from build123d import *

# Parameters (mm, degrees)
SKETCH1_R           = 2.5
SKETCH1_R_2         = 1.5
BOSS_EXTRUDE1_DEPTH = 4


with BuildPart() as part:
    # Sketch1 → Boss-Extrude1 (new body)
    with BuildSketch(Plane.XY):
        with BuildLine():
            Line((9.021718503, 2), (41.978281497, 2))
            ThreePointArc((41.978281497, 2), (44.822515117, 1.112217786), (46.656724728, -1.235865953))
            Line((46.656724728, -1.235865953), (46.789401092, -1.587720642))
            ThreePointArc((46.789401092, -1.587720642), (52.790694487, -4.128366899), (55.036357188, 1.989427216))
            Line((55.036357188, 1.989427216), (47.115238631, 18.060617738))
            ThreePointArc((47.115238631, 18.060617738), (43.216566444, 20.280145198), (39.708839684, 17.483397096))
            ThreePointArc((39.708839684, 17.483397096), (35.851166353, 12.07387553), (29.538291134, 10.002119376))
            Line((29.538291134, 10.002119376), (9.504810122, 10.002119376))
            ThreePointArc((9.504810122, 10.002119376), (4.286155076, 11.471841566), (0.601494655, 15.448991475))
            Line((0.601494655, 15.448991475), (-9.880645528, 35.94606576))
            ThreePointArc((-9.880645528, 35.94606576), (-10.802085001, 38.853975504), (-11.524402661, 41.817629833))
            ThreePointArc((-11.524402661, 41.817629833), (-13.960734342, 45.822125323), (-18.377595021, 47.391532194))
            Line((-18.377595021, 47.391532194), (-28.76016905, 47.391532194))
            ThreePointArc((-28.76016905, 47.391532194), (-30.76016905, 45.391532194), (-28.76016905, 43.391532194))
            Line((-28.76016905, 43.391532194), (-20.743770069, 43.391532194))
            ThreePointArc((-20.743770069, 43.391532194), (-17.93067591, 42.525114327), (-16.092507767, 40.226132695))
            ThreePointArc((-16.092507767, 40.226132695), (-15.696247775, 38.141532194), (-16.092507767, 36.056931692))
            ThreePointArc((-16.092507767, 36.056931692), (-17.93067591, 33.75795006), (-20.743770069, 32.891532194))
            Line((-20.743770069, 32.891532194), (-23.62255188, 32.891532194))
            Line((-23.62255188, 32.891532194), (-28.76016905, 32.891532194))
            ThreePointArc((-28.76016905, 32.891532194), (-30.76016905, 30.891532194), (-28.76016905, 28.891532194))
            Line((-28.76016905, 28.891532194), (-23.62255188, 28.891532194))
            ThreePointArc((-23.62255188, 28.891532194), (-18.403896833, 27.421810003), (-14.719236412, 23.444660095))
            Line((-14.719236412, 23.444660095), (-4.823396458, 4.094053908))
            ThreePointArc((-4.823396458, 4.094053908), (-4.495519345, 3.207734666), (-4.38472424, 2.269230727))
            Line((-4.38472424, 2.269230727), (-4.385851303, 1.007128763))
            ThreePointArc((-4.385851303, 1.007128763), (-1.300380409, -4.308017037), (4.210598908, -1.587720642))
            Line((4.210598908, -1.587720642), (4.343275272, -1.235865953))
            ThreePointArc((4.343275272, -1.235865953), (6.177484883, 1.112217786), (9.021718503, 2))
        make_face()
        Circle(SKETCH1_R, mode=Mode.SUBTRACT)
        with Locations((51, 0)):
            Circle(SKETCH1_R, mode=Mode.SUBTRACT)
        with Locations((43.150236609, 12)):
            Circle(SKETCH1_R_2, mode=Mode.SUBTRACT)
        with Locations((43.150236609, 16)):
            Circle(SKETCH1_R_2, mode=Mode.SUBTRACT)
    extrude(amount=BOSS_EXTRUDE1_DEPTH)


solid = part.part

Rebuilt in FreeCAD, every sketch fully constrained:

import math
import FreeCAD as App
import Part
import Sketcher

doc = App.newDocument("Part")
params = doc.addObject("Spreadsheet::Sheet", "Params")
for row, (alias, value) in enumerate([
    ("sketch1_diameter", "5 mm"),
    ("sketch1_diameter2", "5 mm"),
    ("sketch1_diameter3", "3 mm"),
    ("sketch1_diameter4", "3 mm"),
    ("sketch1_radius", "5 mm"),
    ("pad1_length", "4 mm"),
], start=1):
    params.set(f"A{row}", alias)
    params.set(f"B{row}", "=" + value)
    params.setAlias(f"B{row}", alias)

body = doc.addObject("PartDesign::Body", "Body")

sketch1 = body.newObject("Sketcher::SketchObject", "Sketch")
sketch1.AttachmentSupport = (doc.getObject("XY_Plane"), [""])
sketch1.MapMode = "FlatFace"
sketch1.addGeometry(Part.LineSegment(App.Vector(9.021719, 2, 0), App.Vector(41.978281, 2, 0)), False)
sketch1.addGeometry(Part.ArcOfCircle(Part.Circle(App.Vector(41.978281, -3, 0), App.Vector(0, 0, 1), 5), math.radians(20.660313), math.radians(90)), False)
sketch1.addGeometry(Part.LineSegment(App.Vector(46.656725, -1.235866, 0), App.Vector(46.789401, -1.587721, 0)), False)
sketch1.addGeometry(Part.ArcOfCircle(Part.Circle(App.Vector(51, 0, 0), App.Vector(0, 0, 1), 4.5), math.radians(-159.339687), math.radians(26.237623)), False)
sketch1.addGeometry(Part.LineSegment(App.Vector(55.036357, 1.989427, 0), App.Vector(47.115239, 18.060618, 0)), False)
sketch1.addGeometry(Part.ArcOfCircle(Part.Circle(App.Vector(43.527366, 16.292238, 0), App.Vector(0, 0, 1), 4), math.radians(26.237623), math.radians(162.6751)), False)
sketch1.addGeometry(Part.ArcOfCircle(Part.Circle(App.Vector(29.538291, 20.65602, 0), App.Vector(0, 0, 1), 10.6539), math.radians(-90), math.radians(-17.3249)), False)
sketch1.addGeometry(Part.LineSegment(App.Vector(29.538291, 10.002119, 0), App.Vector(9.50481, 10.002119, 0)), False)
sketch1.addGeometry(Part.ArcOfCircle(Part.Circle(App.Vector(9.50481, 20.002119, 0), App.Vector(0, 0, 1), 10), math.radians(-152.914939), math.radians(-90)), False)
sketch1.addGeometry(Part.LineSegment(App.Vector(0.601495, 15.448991, 0), App.Vector(-9.880646, 35.946066, 0)), False)
sketch1.addGeometry(Part.ArcOfCircle(Part.Circle(App.Vector(32.531834, 50.9854, 0), App.Vector(0, 0, 1), 45), math.radians(-168.244939), math.radians(-160.47565)), False)
sketch1.addGeometry(Part.ArcOfCircle(Part.Circle(App.Vector(-18.377595, 40.391532, 0), App.Vector(0, 0, 1), 7), math.radians(11.755061), math.radians(90)), False)
sketch1.addGeometry(Part.LineSegment(App.Vector(-18.377595, 47.391532, 0), App.Vector(-28.760169, 47.391532, 0)), False)
sketch1.addGeometry(Part.ArcOfCircle(Part.Circle(App.Vector(-28.760169, 45.391532, 0), App.Vector(0, 0, 1), 2), math.radians(90), math.radians(270)), False)
sketch1.addGeometry(Part.LineSegment(App.Vector(-28.760169, 43.391532, 0), App.Vector(-20.74377, 43.391532, 0)), False)
sketch1.addGeometry(Part.ArcOfCircle(Part.Circle(App.Vector(-20.74377, 38.391532, 0), App.Vector(0, 0, 1), 5), math.radians(21.525797), math.radians(90)), False)
sketch1.addGeometry(Part.ArcOfCircle(Part.Circle(App.Vector(-21.377595, 38.141532, 0), App.Vector(0, 0, 1), 5.681347), math.radians(-21.525797), math.radians(21.525797)), False)
sketch1.addGeometry(Part.ArcOfCircle(Part.Circle(App.Vector(-20.74377, 37.891532, 0), App.Vector(0, 0, 1), 5), math.radians(-90), math.radians(-21.525797)), False)
sketch1.addGeometry(Part.LineSegment(App.Vector(-20.74377, 32.891532, 0), App.Vector(-28.760169, 32.891532, 0)), False)
sketch1.addGeometry(Part.ArcOfCircle(Part.Circle(App.Vector(-28.760169, 30.891532, 0), App.Vector(0, 0, 1), 2), math.radians(90), math.radians(270)), False)
sketch1.addGeometry(Part.LineSegment(App.Vector(-28.760169, 28.891532, 0), App.Vector(-23.622552, 28.891532, 0)), False)
sketch1.addGeometry(Part.ArcOfCircle(Part.Circle(App.Vector(-23.622552, 18.891532, 0), App.Vector(0, 0, 1), 10), math.radians(27.085062), math.radians(90)), False)
sketch1.addGeometry(Part.LineSegment(App.Vector(-14.719236, 23.44466, 0), App.Vector(-4.823396, 4.094054, 0)), False)
sketch1.addGeometry(Part.ArcOfCircle(Part.Circle(App.Vector(-8.384723, 2.272803, 0), App.Vector(0, 0, 1), 4), math.radians(-0.051165), math.radians(27.085062)), False)
sketch1.addGeometry(Part.LineSegment(App.Vector(-4.384724, 2.269231, 0), App.Vector(-4.385851, 1.007129, 0)), False)
sketch1.addGeometry(Part.ArcOfCircle(Part.Circle(App.Vector(0, 0, 0), App.Vector(0, 0, 1), 4.5), math.radians(167.0673), math.radians(339.339687)), False)
sketch1.addGeometry(Part.LineSegment(App.Vector(4.210599, -1.587721, 0), App.Vector(4.343275, -1.235866, 0)), False)
sketch1.addGeometry(Part.ArcOfCircle(Part.Circle(App.Vector(9.021719, -3, 0), App.Vector(0, 0, 1), 5), math.radians(90), math.radians(159.339687)), False)
sketch1.addGeometry(Part.Circle(App.Vector(0, 0, 0), App.Vector(0, 0, 1), 2.5), False)
sketch1.addGeometry(Part.Circle(App.Vector(51, 0, 0), App.Vector(0, 0, 1), 2.5), False)
sketch1.addGeometry(Part.Circle(App.Vector(43.150237, 12, 0), App.Vector(0, 0, 1), 1.5), False)
sketch1.addGeometry(Part.Circle(App.Vector(43.150237, 16, 0), App.Vector(0, 0, 1), 1.5), False)
sketch1.addConstraint(Sketcher.Constraint("Coincident", 0, 2, 1, 2))
sketch1.addConstraint(Sketcher.Constraint("Coincident", 1, 1, 2, 1))
sketch1.addConstraint(Sketcher.Constraint("Coincident", 2, 2, 3, 1))
sketch1.addConstraint(Sketcher.Constraint("Coincident", 3, 2, 4, 1))
sketch1.addConstraint(Sketcher.Constraint("Coincident", 4, 2, 5, 1))
sketch1.addConstraint(Sketcher.Constraint("Coincident", 5, 2, 6, 2))
sketch1.addConstraint(Sketcher.Constraint("Coincident", 6, 1, 7, 1))
sketch1.addConstraint(Sketcher.Constraint("Coincident", 7, 2, 8, 2))
sketch1.addConstraint(Sketcher.Constraint("Coincident", 8, 1, 9, 1))
sketch1.addConstraint(Sketcher.Constraint("Coincident", 9, 2, 10, 2))
sketch1.addConstraint(Sketcher.Constraint("Coincident", 10, 1, 11, 1))
sketch1.addConstraint(Sketcher.Constraint("Coincident", 11, 2, 12, 1))
sketch1.addConstraint(Sketcher.Constraint("Coincident", 12, 2, 13, 1))
sketch1.addConstraint(Sketcher.Constraint("Coincident", 13, 2, 14, 1))
sketch1.addConstraint(Sketcher.Constraint("Coincident", 14, 2, 15, 2))
sketch1.addConstraint(Sketcher.Constraint("Coincident", 15, 1, 16, 2))
sketch1.addConstraint(Sketcher.Constraint("Coincident", 16, 1, 17, 2))
sketch1.addConstraint(Sketcher.Constraint("Coincident", 17, 1, 18, 1))
sketch1.addConstraint(Sketcher.Constraint("Coincident", 18, 2, 19, 1))
sketch1.addConstraint(Sketcher.Constraint("Coincident", 19, 2, 20, 1))
sketch1.addConstraint(Sketcher.Constraint("Coincident", 20, 2, 21, 2))
sketch1.addConstraint(Sketcher.Constraint("Coincident", 21, 1, 22, 1))
sketch1.addConstraint(Sketcher.Constraint("Coincident", 22, 2, 23, 2))
sketch1.addConstraint(Sketcher.Constraint("Coincident", 23, 1, 24, 1))
sketch1.addConstraint(Sketcher.Constraint("Coincident", 24, 2, 25, 1))
sketch1.addConstraint(Sketcher.Constraint("Coincident", 25, 2, 26, 1))
sketch1.addConstraint(Sketcher.Constraint("Coincident", 26, 2, 27, 2))
sketch1.addConstraint(Sketcher.Constraint("Coincident", 27, 1, 0, 1))
sketch1.addConstraint(Sketcher.Constraint("Horizontal", 0))
sketch1.addConstraint(Sketcher.Constraint("Horizontal", 7))
sketch1.addConstraint(Sketcher.Constraint("Horizontal", 12))
sketch1.addConstraint(Sketcher.Constraint("Horizontal", 14))
sketch1.addConstraint(Sketcher.Constraint("Horizontal", 18))
sketch1.addConstraint(Sketcher.Constraint("Horizontal", 20))
sketch1.addConstraint(Sketcher.Constraint("Coincident", 25, 3, -1, 1))
sketch1.addConstraint(Sketcher.Constraint("Coincident", 28, 3, -1, 1))
sketch1.addConstraint(Sketcher.Constraint("Coincident", 29, 3, 3, 3))
sketch1.addConstraint(Sketcher.Constraint("PointOnObject", 3, 3, -1))
sketch1.addConstraint(Sketcher.Constraint("Diameter", 28, 5.0))
sketch1.addConstraint(Sketcher.Constraint("Diameter", 29, 5.0))
sketch1.addConstraint(Sketcher.Constraint("Diameter", 30, 3.0))
sketch1.addConstraint(Sketcher.Constraint("Diameter", 31, 3.0))
sketch1.addConstraint(Sketcher.Constraint("Radius", 1, 5.0))
sketch1.addConstraint(Sketcher.Constraint("Radius", 5, 4.0))
sketch1.addConstraint(Sketcher.Constraint("Radius", 8, 10.0))
sketch1.addConstraint(Sketcher.Constraint("Radius", 10, 45.0))
sketch1.addConstraint(Sketcher.Constraint("Radius", 11, 7.0))
sketch1.addConstraint(Sketcher.Constraint("Radius", 13, 2.0))
sketch1.addConstraint(Sketcher.Constraint("Radius", 15, 5.0))
sketch1.addConstraint(Sketcher.Constraint("Radius", 17, 5.0))
sketch1.addConstraint(Sketcher.Constraint("Radius", 19, 2.0))
sketch1.addConstraint(Sketcher.Constraint("Radius", 21, 10.0))
sketch1.addConstraint(Sketcher.Constraint("Radius", 23, 4.0))
sketch1.addConstraint(Sketcher.Constraint("Radius", 27, 5.0))
sketch1.addConstraint(Sketcher.Constraint("Radius", 3, 4.5))
sketch1.addConstraint(Sketcher.Constraint("Radius", 25, 4.5))
sketch1.addConstraint(Sketcher.Constraint("DistanceY", 1, 3, -1, 1, 3.0))
sketch1.addConstraint(Sketcher.Constraint("DistanceX", -1, 1, 3, 3, 51.0))
sketch1.addConstraint(Sketcher.Constraint("DistanceY", -1, 1, 30, 3, 12.0))
sketch1.addConstraint(Sketcher.Constraint("DistanceY", -1, 1, 31, 3, 16.0))
sketch1.addConstraint(Sketcher.Constraint("DistanceX", 16, 3, 11, 3, 3.0))
sketch1.addConstraint(Sketcher.Constraint("DistanceX", 16, 3, 11, 2, 3.0))
sketch1.addConstraint(Sketcher.Constraint("Radius", 6, 10.6539))
sketch1.addConstraint(Sketcher.Constraint("DistanceY", 17, 3, 15, 3, 0.5))
sketch1.addConstraint(Sketcher.Constraint("DistanceY", 16, 3, 15, 3, 0.25))
sketch1.addConstraint(Sketcher.Constraint("DistanceX", 14, 1, 14, 2, 8.016399))
sketch1.addConstraint(Sketcher.Constraint("DistanceX", 18, 2, 18, 1, 8.016399))
sketch1.addConstraint(Sketcher.Constraint("Radius", 16, 5.681347))
sketch1.addConstraint(Sketcher.Constraint("DistanceX", 7, 2, 7, 1, 20.033481))
sketch1.addConstraint(Sketcher.Constraint("DistanceY", -1, 1, 10, 3, 50.9854))
sketch1.addConstraint(Sketcher.Constraint("DistanceX", -1, 1, 2, 2, 46.789401))
sketch1.addConstraint(Sketcher.Constraint("DistanceX", -1, 1, 25, 2, 4.210599))
sketch1.addConstraint(Sketcher.Constraint("DistanceX", 13, 3, 15, 3, 8.016399))
sketch1.addConstraint(Sketcher.Constraint("DistanceX", 19, 3, 17, 3, 8.016399))
sketch1.addConstraint(Sketcher.Constraint("DistanceY", 4, 2, 6, 3, 2.595402))
sketch1.addConstraint(Sketcher.Constraint("DistanceX", 5, 2, 4, 2, 7.406399))
sketch1.addConstraint(Sketcher.Constraint("DistanceX", 12, 2, 15, 3, 8.016399))
sketch1.addConstraint(Sketcher.Constraint("DistanceX", 13, 2, 15, 3, 8.016399))
sketch1.addConstraint(Sketcher.Constraint("DistanceY", 15, 1, 11, 3, 0.165399))
sketch1.addConstraint(Sketcher.Constraint("DistanceY", 16, 1, 15, 1, 4.169201))
sketch1.addConstraint(Sketcher.Constraint("DistanceX", 18, 2, 17, 3, 8.016399))
sketch1.addConstraint(Sketcher.Constraint("DistanceX", 19, 2, 17, 1, 8.016399))
sketch1.addConstraint(Sketcher.Constraint("DistanceY", 24, 2, 23, 1, 1.262102))
sketch1.addConstraint(Sketcher.Constraint("Distance", 2, 0.376038))
sketch1.addConstraint(Sketcher.Constraint("Distance", 26, 0.376038))
sketch1.addConstraint(Sketcher.Constraint("DistanceX", 0, 1, 0, 2, 32.956563))
sketch1.addConstraint(Sketcher.Constraint("DistanceX", 20, 1, 20, 2, 5.137617))
sketch1.addConstraint(Sketcher.Constraint("DistanceX", -1, 1, 1, 3, 41.978281))
sketch1.addConstraint(Sketcher.Constraint("DistanceX", -1, 1, 6, 3, 29.538291))
sketch1.addConstraint(Sketcher.Constraint("DistanceY", -1, 1, 6, 3, 20.65602))
sketch1.addConstraint(Sketcher.Constraint("DistanceX", -1, 1, 8, 3, 9.50481))
sketch1.addConstraint(Sketcher.Constraint("DistanceX", 13, 3, -1, 1, 28.760169))
sketch1.addConstraint(Sketcher.Constraint("DistanceX", 21, 3, -1, 1, 23.622552))
sketch1.addConstraint(Sketcher.Constraint("DistanceX", -1, 1, 27, 3, 9.021719))
sketch1.addConstraint(Sketcher.Constraint("DistanceX", -1, 1, 0, 2, 41.978281))
sketch1.addConstraint(Sketcher.Constraint("DistanceX", -1, 1, 4, 2, 47.115239))
sketch1.addConstraint(Sketcher.Constraint("DistanceX", -1, 1, 6, 1, 29.538291))
sketch1.addConstraint(Sketcher.Constraint("DistanceY", -1, 1, 8, 1, 15.448991))
sketch1.addConstraint(Sketcher.Constraint("DistanceY", -1, 1, 10, 1, 41.81763))
sketch1.addConstraint(Sketcher.Constraint("DistanceY", -1, 1, 16, 1, 36.056932))
sketch1.addConstraint(Sketcher.Constraint("DistanceY", -1, 1, 21, 1, 23.44466))
sketch1.addConstraint(Sketcher.Constraint("DistanceY", -1, 1, 23, 1, 2.269231))
sketch1.addConstraint(Sketcher.Constraint("DistanceX", 21, 3, 23, 3, 15.237829))
sketch1.addConstraint(Sketcher.Constraint("DistanceY", 23, 3, 21, 3, 16.618729))
sketch1.addConstraint(Sketcher.Constraint("DistanceX", 30, 3, 5, 3, 0.377129))
sketch1.addConstraint(Sketcher.Constraint("DistanceX", 31, 3, 5, 3, 0.377129))
sketch1.addConstraint(Sketcher.Constraint("DistanceX", 11, 3, 9, 2, 8.496949))
sketch1.addConstraint(Sketcher.Constraint("DistanceY", 23, 3, 22, 2, 1.821251))
sketch1.addConstraint(Sketcher.Constraint("Distance", 4, 17.917234))
sketch1.setExpression("Constraints[38]", "Params.sketch1_diameter")
sketch1.setExpression("Constraints[39]", "Params.sketch1_diameter2")
sketch1.setExpression("Constraints[40]", "Params.sketch1_diameter3")
sketch1.setExpression("Constraints[41]", "Params.sketch1_diameter4")
sketch1.setExpression("Constraints[42]", "Params.sketch1_radius")
pad1 = body.newObject("PartDesign::Pad", "Pad")
pad1.Profile = sketch1
pad1.setExpression("Length", "Params.pad1_length")

doc.recompute()
